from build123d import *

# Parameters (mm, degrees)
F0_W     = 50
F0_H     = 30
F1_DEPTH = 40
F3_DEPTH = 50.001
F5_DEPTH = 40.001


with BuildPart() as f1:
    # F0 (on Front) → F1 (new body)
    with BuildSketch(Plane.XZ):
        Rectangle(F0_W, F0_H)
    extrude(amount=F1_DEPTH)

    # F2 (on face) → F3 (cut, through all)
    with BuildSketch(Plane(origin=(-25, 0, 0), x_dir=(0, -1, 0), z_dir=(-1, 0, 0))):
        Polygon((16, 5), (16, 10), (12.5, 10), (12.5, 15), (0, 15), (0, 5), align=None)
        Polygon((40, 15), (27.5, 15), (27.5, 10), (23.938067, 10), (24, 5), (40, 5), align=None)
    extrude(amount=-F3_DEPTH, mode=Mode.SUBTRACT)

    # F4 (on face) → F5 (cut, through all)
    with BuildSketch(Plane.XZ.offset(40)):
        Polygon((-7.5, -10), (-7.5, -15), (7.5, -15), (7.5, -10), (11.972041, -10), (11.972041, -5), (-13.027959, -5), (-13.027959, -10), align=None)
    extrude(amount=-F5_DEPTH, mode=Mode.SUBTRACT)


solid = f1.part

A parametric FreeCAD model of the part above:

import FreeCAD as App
import Part
import Sketcher
from FreeCAD import Vector
Q = App.Units.Quantity

doc = App.newDocument("Part")
body = doc.addObject("PartDesign::Body", "Body")

# Sketch on XZ plane
sketch1 = body.newObject("Sketcher::SketchObject", "Sketch")
sketch1.AttachmentSupport = (doc.getObject("XZ_Plane"), [""])
sketch1.MapMode = "FlatFace"
sketch1.addGeometry(Part.LineSegment(Vector(-25, 15, 0), Vector(-25, -15, 0)), False)
sketch1.addGeometry(Part.LineSegment(Vector(-25, -15, 0), Vector(25, -15, 0)), False)
sketch1.addGeometry(Part.LineSegment(Vector(25, -15, 0), Vector(25, 15, 0)), False)
sketch1.addGeometry(Part.LineSegment(Vector(25, 15, 0), Vector(-25, 15, 0)), False)
sketch1.addConstraint(Sketcher.Constraint("Coincident", 0, 2, 1, 1))
sketch1.addConstraint(Sketcher.Constraint("Coincident", 1, 2, 2, 1))
sketch1.addConstraint(Sketcher.Constraint("Coincident", 2, 2, 3, 1))
sketch1.addConstraint(Sketcher.Constraint("Coincident", 3, 2, 0, 1))
sketch1.addConstraint(Sketcher.Constraint("Vertical", 0))
sketch1.addConstraint(Sketcher.Constraint("Horizontal", 1))
sketch1.addConstraint(Sketcher.Constraint("Vertical", 2))
sketch1.addConstraint(Sketcher.Constraint("Horizontal", 3))
sketch1.addConstraint(Sketcher.Constraint("Symmetric", 0, 2, 2, 2, -1, 1))
sketch1.addConstraint(Sketcher.Constraint("DistanceX", 1, 1, 1, 2, Q("50 mm")))
sketch1.addConstraint(Sketcher.Constraint("DistanceY", 0, 2, 0, 1, Q("30 mm")))
pad1 = body.newObject("PartDesign::Pad", "Pad")
pad1.Profile = sketch1
pad1.Length = 40

# Sketch on YZ plane
sketch2 = body.newObject("Sketcher::SketchObject", "Sketch001")
sketch2.AttachmentSupport = (doc.getObject("YZ_Plane"), [""])
sketch2.MapMode = "FlatFace"
sketch2.AttachmentOffset = App.Placement(Vector(0, 0, -25), App.Rotation())
sketch2.addGeometry(Part.LineSegment(Vector(-16, 5, 0), Vector(-16, 10, 0)), False)
sketch2.addGeometry(Part.LineSegment(Vector(-16, 10, 0), Vector(-12.5, 10, 0)), False)
sketch2.addGeometry(Part.LineSegment(Vector(-12.5, 10, 0), Vector(-12.5, 15, 0)), False)
sketch2.addGeometry(Part.LineSegment(Vector(-12.5, 15, 0), Vector(0, 15, 0)), False)
sketch2.addGeometry(Part.LineSegment(Vector(0, 15, 0), Vector(0, 5, 0)), False)
sketch2.addGeometry(Part.LineSegment(Vector(0, 5, 0), Vector(-16, 5, 0)), False)
sketch2.addGeometry(Part.LineSegment(Vector(-40, 15, 0), Vector(-27.5, 15, 0)), False)
sketch2.addGeometry(Part.LineSegment(Vector(-27.5, 15, 0), Vector(-27.5, 10, 0)), False)
sketch2.addGeometry(Part.LineSegment(Vector(-27.5, 10, 0), Vector(-23.9, 10, 0)), False)
sketch2.addGeometry(Part.LineSegment(Vector(-23.9, 10, 0), Vector(-24, 5, 0)), False)
sketch2.addGeometry(Part.LineSegment(Vector(-24, 5, 0), Vector(-40, 5, 0)), False)
sketch2.addGeometry(Part.LineSegment(Vector(-40, 5, 0), Vector(-40, 15, 0)), False)
sketch2.addConstraint(Sketcher.Constraint("Coincident", 0, 2, 1, 1))
sketch2.addConstraint(Sketcher.Constraint("Coincident", 1, 2, 2, 1))
sketch2.addConstraint(Sketcher.Constraint("Coincident", 2, 2, 3, 1))
sketch2.addConstraint(Sketcher.Constraint("Coincident", 3, 2, 4, 1))
sketch2.addConstraint(Sketcher.Constraint("Coincident", 4, 2, 5, 1))
sketch2.addConstraint(Sketcher.Constraint("Coincident", 5, 2, 0, 1))
sketch2.addConstraint(Sketcher.Constraint("Coincident", 6, 2, 7, 1))
sketch2.addConstraint(Sketcher.Constraint("Coincident", 7, 2, 8, 1))
sketch2.addConstraint(Sketcher.Constraint("Coincident", 8, 2, 9, 1))
sketch2.addConstraint(Sketcher.Constraint("Coincident", 9, 2, 10, 1))
sketch2.addConstraint(Sketcher.Constraint("Coincident", 10, 2, 11, 1))
sketch2.addConstraint(Sketcher.Constraint("Coincident", 11, 2, 6, 1))
sketch2.addConstraint(Sketcher.Constraint("Vertical", 0))
sketch2.addConstraint(Sketcher.Constraint("Horizontal", 1))
sketch2.addConstraint(Sketcher.Constraint("Vertical", 2))
sketch2.addConstraint(Sketcher.Constraint("Horizontal", 3))
sketch2.addConstraint(Sketcher.Constraint("Vertical", 4))
sketch2.addConstraint(Sketcher.Constraint("Horizontal", 5))
sketch2.addConstraint(Sketcher.Constraint("Horizontal", 6))
sketch2.addConstraint(Sketcher.Constraint("Vertical", 7))
sketch2.addConstraint(Sketcher.Constraint("Horizontal", 8))
sketch2.addConstraint(Sketcher.Constraint("Horizontal", 10))
sketch2.addConstraint(Sketcher.Constraint("Vertical", 11))
sketch2.addConstraint(Sketcher.Constraint("PointOnObject", 3, 2, -2))
sketch2.addConstraint(Sketcher.Constraint("Horizontal", 3, 2, 6, 2))
sketch2.addConstraint(Sketcher.Constraint("Horizontal", 1, 2, 7, 2))
sketch2.addConstraint(Sketcher.Constraint("Horizontal", 5, 2, 9, 2))
sketch2.addConstraint(Sketcher.Constraint("Equal", 3, 6))
sketch2.addConstraint(Sketcher.Constraint("Equal", 5, 10))
sketch2.addConstraint(Sketcher.Constraint("Equal", 0, 2))
sketch2.addConstraint(Sketcher.Constraint("DistanceX", 5, 2, 5, 1, Q("16 mm")))
sketch2.addConstraint(Sketcher.Constraint("DistanceY", 0, 1, 0, 2, Q("5 mm")))
sketch2.addConstraint(Sketcher.Constraint("DistanceX", 1, 1, 1, 2, Q("3.5 mm")))
sketch2.addConstraint(Sketcher.Constraint("DistanceY", -1, 1, 0, 2, Q("10 mm")))
sketch2.addConstraint(Sketcher.Constraint("DistanceX", 9, 2, -1, 1, Q("24 mm")))
sketch2.addConstraint(Sketcher.Constraint("DistanceX", 8, 1, 8, 2, Q("3.561933 mm")))
pocket1 = body.newObject("PartDesign::Pocket", "Pocket")
pocket1.Profile = sketch2
pocket1.Type = "ThroughAll"
pocket1.Reversed = True

# Sketch on XZ plane
sketch3 = body.newObject("Sketcher::SketchObject", "Sketch002")
sketch3.AttachmentSupport = (doc.getObject("XZ_Plane"), [""])
sketch3.MapMode = "FlatFace"
sketch3.AttachmentOffset = App.Placement(Vector(0, 0, 40), App.Rotation())
sketch3.addGeometry(Part.LineSegment(Vector(-7.5, -10, 0), Vector(-7.5, -15, 0)), False)
sketch3.addGeometry(Part.LineSegment(Vector(-7.5, -15, 0), Vector(7.5, -15, 0)), False)
sketch3.addGeometry(Part.LineSegment(Vector(7.5, -15, 0), Vector(7.5, -10, 0)), False)
sketch3.addGeometry(Part.LineSegment(Vector(7.5, -10, 0), Vector(12, -10, 0)), False)
sketch3.addGeometry(Part.LineSegment(Vector(12, -10, 0), Vector(12, -5, 0)), False)
sketch3.addGeometry(Part.LineSegment(Vector(12, -5, 0), Vector(-13, -5, 0)), False)
sketch3.addGeometry(Part.LineSegment(Vector(-13, -5, 0), Vector(-13, -10, 0)), False)
sketch3.addGeometry(Part.LineSegment(Vector(-13, -10, 0), Vector(-7.5, -10, 0)), False)
sketch3.addConstraint(Sketcher.Constraint("Coincident", 0, 2, 1, 1))
sketch3.addConstraint(Sketcher.Constraint("Coincident", 1, 2, 2, 1))
sketch3.addConstraint(Sketcher.Constraint("Coincident", 2, 2, 3, 1))
sketch3.addConstraint(Sketcher.Constraint("Coincident", 3, 2, 4, 1))
sketch3.addConstraint(Sketcher.Constraint("Coincident", 4, 2, 5, 1))
sketch3.addConstraint(Sketcher.Constraint("Coincident", 5, 2, 6, 1))
sketch3.addConstraint(Sketcher.Constraint("Coincident", 6, 2, 7, 1))
sketch3.addConstraint(Sketcher.Constraint("Coincident", 7, 2, 0, 1))
sketch3.addConstraint(Sketcher.Constraint("Vertical", 0))
sketch3.addConstraint(Sketcher.Constraint("Horizontal", 1))
sketch3.addConstraint(Sketcher.Constraint("Vertical", 2))
sketch3.addConstraint(Sketcher.Constraint("Horizontal", 3))
sketch3.addConstraint(Sketcher.Constraint("Vertical", 4))
sketch3.addConstraint(Sketcher.Constraint("Horizontal", 5))
sketch3.addConstraint(Sketcher.Constraint("Vertical", 6))
sketch3.addConstraint(Sketcher.Constraint("Horizontal", 7))
sketch3.addConstraint(Sketcher.Constraint("Symmetric", 2, 2, 7, 2, -2))
sketch3.addConstraint(Sketcher.Constraint("Equal", 2, 4))
sketch3.addConstraint(Sketcher.Constraint("DistanceX", 1, 1, 1, 2, Q("15 mm")))
sketch3.addConstraint(Sketcher.Constraint("DistanceX", 5, 2, 5, 1, Q("25 mm")))
sketch3.addConstraint(Sketcher.Constraint("DistanceY", 0, 2, 0, 1, Q("5 mm")))
sketch3.addConstraint(Sketcher.Constraint("DistanceY", 0, 2, -1, 1, Q("15 mm")))
sketch3.addConstraint(Sketcher.Constraint("DistanceX", 3, 1, 3, 2, Q("4.472041 mm")))
pocket2 = body.newObject("PartDesign::Pocket", "Pocket001")
pocket2.Profile = sketch3
pocket2.Type = "ThroughAll"

doc.recompute()
